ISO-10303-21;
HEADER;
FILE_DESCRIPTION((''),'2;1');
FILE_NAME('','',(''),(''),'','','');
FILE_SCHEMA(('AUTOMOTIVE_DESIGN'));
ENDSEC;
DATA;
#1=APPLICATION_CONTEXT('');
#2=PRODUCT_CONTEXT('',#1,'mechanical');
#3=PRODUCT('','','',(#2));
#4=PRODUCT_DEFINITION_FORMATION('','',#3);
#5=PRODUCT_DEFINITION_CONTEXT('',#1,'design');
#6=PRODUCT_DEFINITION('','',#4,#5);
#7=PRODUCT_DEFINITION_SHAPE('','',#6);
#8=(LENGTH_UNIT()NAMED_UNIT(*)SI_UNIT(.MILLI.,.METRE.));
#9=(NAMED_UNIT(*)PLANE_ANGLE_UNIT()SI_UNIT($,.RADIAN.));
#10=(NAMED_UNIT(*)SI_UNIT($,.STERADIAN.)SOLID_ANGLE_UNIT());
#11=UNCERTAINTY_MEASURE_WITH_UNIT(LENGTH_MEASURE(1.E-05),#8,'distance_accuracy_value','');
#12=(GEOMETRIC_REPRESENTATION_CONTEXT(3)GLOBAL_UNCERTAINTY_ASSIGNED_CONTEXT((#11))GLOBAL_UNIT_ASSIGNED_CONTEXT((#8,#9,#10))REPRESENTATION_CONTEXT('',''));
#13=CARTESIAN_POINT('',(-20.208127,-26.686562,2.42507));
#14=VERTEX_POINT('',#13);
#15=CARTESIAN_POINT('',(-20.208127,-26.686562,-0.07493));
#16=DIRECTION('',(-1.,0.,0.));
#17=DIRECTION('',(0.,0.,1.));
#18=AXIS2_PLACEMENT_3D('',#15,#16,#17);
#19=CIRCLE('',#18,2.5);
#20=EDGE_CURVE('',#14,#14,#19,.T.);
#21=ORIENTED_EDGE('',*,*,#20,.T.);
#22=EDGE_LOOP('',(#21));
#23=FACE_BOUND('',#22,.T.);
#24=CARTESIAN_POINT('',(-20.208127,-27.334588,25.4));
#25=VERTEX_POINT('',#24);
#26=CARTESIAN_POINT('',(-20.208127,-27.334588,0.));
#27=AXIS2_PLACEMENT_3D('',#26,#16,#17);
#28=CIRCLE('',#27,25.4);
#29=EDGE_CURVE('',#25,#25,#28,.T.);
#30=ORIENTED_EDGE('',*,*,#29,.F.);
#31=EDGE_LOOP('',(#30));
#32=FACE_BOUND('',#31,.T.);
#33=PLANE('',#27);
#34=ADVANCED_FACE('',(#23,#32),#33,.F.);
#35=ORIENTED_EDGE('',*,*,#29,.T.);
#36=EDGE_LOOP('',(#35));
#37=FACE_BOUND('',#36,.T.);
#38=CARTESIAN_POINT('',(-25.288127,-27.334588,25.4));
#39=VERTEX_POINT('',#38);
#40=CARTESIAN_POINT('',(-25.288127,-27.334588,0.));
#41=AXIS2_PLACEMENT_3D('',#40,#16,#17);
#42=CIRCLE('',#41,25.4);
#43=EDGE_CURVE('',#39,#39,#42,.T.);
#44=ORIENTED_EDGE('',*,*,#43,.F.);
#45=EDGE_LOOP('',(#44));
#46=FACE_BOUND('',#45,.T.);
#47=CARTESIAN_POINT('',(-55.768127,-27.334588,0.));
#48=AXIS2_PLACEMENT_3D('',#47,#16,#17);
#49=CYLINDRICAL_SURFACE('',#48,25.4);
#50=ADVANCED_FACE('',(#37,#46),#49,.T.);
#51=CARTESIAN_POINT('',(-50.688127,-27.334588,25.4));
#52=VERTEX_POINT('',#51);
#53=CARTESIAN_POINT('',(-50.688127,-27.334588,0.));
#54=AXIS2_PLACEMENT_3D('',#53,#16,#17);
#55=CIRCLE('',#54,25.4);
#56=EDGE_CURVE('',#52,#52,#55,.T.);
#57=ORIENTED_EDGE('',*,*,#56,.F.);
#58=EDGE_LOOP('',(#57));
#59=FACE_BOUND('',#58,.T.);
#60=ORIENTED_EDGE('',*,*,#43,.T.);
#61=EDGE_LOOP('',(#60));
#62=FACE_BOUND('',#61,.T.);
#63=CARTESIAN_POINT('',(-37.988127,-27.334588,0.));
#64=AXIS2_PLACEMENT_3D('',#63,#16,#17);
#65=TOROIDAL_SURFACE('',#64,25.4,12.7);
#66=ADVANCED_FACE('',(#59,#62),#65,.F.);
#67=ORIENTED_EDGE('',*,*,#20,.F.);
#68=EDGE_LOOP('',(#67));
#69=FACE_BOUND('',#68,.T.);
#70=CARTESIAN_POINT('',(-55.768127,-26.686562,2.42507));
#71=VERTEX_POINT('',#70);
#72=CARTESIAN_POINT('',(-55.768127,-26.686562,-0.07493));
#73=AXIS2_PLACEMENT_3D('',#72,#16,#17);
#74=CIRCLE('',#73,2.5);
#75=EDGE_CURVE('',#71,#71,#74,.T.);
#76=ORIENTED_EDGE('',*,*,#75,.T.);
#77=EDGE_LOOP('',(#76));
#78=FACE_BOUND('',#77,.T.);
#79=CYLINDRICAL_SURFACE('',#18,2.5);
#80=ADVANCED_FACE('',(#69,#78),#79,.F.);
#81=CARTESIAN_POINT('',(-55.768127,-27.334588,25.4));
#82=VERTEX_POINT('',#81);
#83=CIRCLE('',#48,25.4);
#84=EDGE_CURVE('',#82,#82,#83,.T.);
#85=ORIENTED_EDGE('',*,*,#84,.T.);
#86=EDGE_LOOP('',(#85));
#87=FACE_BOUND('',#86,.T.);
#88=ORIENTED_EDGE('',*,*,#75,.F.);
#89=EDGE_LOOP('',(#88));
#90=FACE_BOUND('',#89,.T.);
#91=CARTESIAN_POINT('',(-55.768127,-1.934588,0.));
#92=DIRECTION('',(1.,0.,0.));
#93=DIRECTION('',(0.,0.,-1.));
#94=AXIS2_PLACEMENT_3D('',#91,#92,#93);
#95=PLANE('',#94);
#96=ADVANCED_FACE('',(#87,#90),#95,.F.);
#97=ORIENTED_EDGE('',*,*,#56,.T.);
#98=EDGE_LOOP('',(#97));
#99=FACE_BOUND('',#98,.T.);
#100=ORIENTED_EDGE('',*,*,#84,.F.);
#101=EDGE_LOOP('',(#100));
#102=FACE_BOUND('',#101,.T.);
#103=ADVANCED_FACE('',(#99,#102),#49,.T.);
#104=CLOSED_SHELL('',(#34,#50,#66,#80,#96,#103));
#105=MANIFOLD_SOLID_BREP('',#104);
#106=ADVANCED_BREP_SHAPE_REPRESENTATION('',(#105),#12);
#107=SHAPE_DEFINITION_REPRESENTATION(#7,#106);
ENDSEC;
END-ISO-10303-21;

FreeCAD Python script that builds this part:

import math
import FreeCAD as App
import Part
import Sketcher
Q = App.Units.Quantity

doc = App.newDocument("Part")
body = doc.addObject("PartDesign::Body", "Body")

# Sketch on XY plane
sketch1 = body.newObject("Sketcher::SketchObject", "Sketch")
sketch1.AttachmentSupport = (doc.getObject("XY_Plane"), [""])
sketch1.MapMode = "FlatFace"
sketch1.addGeometry([
    Part.LineSegment(App.Vector(-51, -2, 0), App.Vector(-56, -2, 0)),  # 0
    Part.LineSegment(App.Vector(-56, -2, 0), App.Vector(-56, -27, 0)),  # 1
    Part.LineSegment(App.Vector(-56, -27, 0), App.Vector(-20, -27, 0)),  # 2
    Part.LineSegment(App.Vector(-20, -27, 0), App.Vector(-20, -2, 0)),  # 3
    Part.LineSegment(App.Vector(-20, -2, 0), App.Vector(-25, -2, 0)),  # 4
    Part.ArcOfCircle(Part.Circle(App.Vector(-38, -2, 0), App.Vector(0, 0, 1), 13), math.radians(180), math.radians(360)),  # 5
], False)
sketch1.addGeometry(Part.LineSegment(App.Vector(-56, -27, 0), App.Vector(-20, -27, 0)), True)  # axis
sketch1.addConstraint([
    Sketcher.Constraint("Coincident", 0, 2, 1, 1),
    Sketcher.Constraint("Coincident", 1, 2, 2, 1),
    Sketcher.Constraint("Coincident", 2, 2, 3, 1),
    Sketcher.Constraint("Coincident", 3, 2, 4, 1),
    Sketcher.Constraint("Coincident", 4, 2, 5, 2),
    Sketcher.Constraint("Coincident", 5, 1, 0, 1),
    Sketcher.Constraint("Horizontal", 0),
    Sketcher.Constraint("Vertical", 1),
    Sketcher.Constraint("Horizontal", 2),
    Sketcher.Constraint("Vertical", 3),
    Sketcher.Constraint("Horizontal", 4),
    Sketcher.Constraint("Horizontal", 6),
    Sketcher.Constraint("Coincident", 6, 1, 1, 2),
    Sketcher.Constraint("Horizontal", 5, 3, 0, 2),
    Sketcher.Constraint("Horizontal", 0, 2, 3, 2),
    Sketcher.Constraint("Vertical", 3, 2, 6, 2),
    Sketcher.Constraint("Equal", 0, 4),
    Sketcher.Constraint("Radius", 5, Q("0.5 in")),
    Sketcher.Constraint("DistanceY", 1, 2, 1, 1, Q("1 in")),
    Sketcher.Constraint("DistanceX", 0, 2, 0, 1, Q("0.2 in")),
    Sketcher.Constraint("DistanceX", 5, 3, -1, 1, 37.988127),
    Sketcher.Constraint("DistanceY", 5, 3, -1, 1, 1.934588),
])
revolution = body.newObject("PartDesign::Revolution", "Revolution")
revolution.Profile = sketch1
revolution.ReferenceAxis = (sketch1, ["Axis0"])
revolution.Angle = 360

# Sketch on YZ plane
sketch2 = body.newObject("Sketcher::SketchObject", "Sketch001")
sketch2.AttachmentSupport = (doc.getObject("YZ_Plane"), [""])
sketch2.MapMode = "FlatFace"
sketch2.AttachmentOffset = App.Placement(App.Vector(0, 0, -55.768127), App.Rotation())
sketch2.addGeometry(Part.Circle(App.Vector(-26.69, 0, 0), App.Vector(0, 0, 1), 0.07), False)
sketch2.addConstraint([
    Sketcher.Constraint("PointOnObject", 0, 3, -1),
    Sketcher.Constraint("Diameter", 0, Q("0.0059 in")),
    Sketcher.Constraint("DistanceX", 0, 3, -1, 1, 26.686562),
])
doc.recompute()
hole = body.newObject("PartDesign::Hole", "Hole")
hole.Profile = sketch2
hole.ThreadType = "None"
hole.Diameter = Q("0.0059 in")
hole.DepthType = "ThroughAll"
hole.Reversed = True

# Sketch on YZ plane
sketch3 = body.newObject("Sketcher::SketchObject", "Sketch002")
sketch3.AttachmentSupport = (doc.getObject("YZ_Plane"), [""])
sketch3.MapMode = "FlatFace"
sketch3.AttachmentOffset = App.Placement(App.Vector(0, 0, -55.768127), App.Rotation())
sketch3.addGeometry(Part.Circle(App.Vector(-26.7, -0.1, 0), App.Vector(0, 0, 1), 2.5), False)
sketch3.addConstraint([
    Sketcher.Constraint("Diameter", 0, 5.0),
    Sketcher.Constraint("DistanceY", 0, 3, -1, 1, 0.07493),
    Sketcher.Constraint("DistanceX", 0, 3, -1, 1, 26.686562),
])
pocket1 = body.newObject("PartDesign::Pocket", "Pocket")
pocket1.Profile = sketch3
pocket1.Length = Q("1.4 in")
pocket1.Reversed = True

doc.recompute()
